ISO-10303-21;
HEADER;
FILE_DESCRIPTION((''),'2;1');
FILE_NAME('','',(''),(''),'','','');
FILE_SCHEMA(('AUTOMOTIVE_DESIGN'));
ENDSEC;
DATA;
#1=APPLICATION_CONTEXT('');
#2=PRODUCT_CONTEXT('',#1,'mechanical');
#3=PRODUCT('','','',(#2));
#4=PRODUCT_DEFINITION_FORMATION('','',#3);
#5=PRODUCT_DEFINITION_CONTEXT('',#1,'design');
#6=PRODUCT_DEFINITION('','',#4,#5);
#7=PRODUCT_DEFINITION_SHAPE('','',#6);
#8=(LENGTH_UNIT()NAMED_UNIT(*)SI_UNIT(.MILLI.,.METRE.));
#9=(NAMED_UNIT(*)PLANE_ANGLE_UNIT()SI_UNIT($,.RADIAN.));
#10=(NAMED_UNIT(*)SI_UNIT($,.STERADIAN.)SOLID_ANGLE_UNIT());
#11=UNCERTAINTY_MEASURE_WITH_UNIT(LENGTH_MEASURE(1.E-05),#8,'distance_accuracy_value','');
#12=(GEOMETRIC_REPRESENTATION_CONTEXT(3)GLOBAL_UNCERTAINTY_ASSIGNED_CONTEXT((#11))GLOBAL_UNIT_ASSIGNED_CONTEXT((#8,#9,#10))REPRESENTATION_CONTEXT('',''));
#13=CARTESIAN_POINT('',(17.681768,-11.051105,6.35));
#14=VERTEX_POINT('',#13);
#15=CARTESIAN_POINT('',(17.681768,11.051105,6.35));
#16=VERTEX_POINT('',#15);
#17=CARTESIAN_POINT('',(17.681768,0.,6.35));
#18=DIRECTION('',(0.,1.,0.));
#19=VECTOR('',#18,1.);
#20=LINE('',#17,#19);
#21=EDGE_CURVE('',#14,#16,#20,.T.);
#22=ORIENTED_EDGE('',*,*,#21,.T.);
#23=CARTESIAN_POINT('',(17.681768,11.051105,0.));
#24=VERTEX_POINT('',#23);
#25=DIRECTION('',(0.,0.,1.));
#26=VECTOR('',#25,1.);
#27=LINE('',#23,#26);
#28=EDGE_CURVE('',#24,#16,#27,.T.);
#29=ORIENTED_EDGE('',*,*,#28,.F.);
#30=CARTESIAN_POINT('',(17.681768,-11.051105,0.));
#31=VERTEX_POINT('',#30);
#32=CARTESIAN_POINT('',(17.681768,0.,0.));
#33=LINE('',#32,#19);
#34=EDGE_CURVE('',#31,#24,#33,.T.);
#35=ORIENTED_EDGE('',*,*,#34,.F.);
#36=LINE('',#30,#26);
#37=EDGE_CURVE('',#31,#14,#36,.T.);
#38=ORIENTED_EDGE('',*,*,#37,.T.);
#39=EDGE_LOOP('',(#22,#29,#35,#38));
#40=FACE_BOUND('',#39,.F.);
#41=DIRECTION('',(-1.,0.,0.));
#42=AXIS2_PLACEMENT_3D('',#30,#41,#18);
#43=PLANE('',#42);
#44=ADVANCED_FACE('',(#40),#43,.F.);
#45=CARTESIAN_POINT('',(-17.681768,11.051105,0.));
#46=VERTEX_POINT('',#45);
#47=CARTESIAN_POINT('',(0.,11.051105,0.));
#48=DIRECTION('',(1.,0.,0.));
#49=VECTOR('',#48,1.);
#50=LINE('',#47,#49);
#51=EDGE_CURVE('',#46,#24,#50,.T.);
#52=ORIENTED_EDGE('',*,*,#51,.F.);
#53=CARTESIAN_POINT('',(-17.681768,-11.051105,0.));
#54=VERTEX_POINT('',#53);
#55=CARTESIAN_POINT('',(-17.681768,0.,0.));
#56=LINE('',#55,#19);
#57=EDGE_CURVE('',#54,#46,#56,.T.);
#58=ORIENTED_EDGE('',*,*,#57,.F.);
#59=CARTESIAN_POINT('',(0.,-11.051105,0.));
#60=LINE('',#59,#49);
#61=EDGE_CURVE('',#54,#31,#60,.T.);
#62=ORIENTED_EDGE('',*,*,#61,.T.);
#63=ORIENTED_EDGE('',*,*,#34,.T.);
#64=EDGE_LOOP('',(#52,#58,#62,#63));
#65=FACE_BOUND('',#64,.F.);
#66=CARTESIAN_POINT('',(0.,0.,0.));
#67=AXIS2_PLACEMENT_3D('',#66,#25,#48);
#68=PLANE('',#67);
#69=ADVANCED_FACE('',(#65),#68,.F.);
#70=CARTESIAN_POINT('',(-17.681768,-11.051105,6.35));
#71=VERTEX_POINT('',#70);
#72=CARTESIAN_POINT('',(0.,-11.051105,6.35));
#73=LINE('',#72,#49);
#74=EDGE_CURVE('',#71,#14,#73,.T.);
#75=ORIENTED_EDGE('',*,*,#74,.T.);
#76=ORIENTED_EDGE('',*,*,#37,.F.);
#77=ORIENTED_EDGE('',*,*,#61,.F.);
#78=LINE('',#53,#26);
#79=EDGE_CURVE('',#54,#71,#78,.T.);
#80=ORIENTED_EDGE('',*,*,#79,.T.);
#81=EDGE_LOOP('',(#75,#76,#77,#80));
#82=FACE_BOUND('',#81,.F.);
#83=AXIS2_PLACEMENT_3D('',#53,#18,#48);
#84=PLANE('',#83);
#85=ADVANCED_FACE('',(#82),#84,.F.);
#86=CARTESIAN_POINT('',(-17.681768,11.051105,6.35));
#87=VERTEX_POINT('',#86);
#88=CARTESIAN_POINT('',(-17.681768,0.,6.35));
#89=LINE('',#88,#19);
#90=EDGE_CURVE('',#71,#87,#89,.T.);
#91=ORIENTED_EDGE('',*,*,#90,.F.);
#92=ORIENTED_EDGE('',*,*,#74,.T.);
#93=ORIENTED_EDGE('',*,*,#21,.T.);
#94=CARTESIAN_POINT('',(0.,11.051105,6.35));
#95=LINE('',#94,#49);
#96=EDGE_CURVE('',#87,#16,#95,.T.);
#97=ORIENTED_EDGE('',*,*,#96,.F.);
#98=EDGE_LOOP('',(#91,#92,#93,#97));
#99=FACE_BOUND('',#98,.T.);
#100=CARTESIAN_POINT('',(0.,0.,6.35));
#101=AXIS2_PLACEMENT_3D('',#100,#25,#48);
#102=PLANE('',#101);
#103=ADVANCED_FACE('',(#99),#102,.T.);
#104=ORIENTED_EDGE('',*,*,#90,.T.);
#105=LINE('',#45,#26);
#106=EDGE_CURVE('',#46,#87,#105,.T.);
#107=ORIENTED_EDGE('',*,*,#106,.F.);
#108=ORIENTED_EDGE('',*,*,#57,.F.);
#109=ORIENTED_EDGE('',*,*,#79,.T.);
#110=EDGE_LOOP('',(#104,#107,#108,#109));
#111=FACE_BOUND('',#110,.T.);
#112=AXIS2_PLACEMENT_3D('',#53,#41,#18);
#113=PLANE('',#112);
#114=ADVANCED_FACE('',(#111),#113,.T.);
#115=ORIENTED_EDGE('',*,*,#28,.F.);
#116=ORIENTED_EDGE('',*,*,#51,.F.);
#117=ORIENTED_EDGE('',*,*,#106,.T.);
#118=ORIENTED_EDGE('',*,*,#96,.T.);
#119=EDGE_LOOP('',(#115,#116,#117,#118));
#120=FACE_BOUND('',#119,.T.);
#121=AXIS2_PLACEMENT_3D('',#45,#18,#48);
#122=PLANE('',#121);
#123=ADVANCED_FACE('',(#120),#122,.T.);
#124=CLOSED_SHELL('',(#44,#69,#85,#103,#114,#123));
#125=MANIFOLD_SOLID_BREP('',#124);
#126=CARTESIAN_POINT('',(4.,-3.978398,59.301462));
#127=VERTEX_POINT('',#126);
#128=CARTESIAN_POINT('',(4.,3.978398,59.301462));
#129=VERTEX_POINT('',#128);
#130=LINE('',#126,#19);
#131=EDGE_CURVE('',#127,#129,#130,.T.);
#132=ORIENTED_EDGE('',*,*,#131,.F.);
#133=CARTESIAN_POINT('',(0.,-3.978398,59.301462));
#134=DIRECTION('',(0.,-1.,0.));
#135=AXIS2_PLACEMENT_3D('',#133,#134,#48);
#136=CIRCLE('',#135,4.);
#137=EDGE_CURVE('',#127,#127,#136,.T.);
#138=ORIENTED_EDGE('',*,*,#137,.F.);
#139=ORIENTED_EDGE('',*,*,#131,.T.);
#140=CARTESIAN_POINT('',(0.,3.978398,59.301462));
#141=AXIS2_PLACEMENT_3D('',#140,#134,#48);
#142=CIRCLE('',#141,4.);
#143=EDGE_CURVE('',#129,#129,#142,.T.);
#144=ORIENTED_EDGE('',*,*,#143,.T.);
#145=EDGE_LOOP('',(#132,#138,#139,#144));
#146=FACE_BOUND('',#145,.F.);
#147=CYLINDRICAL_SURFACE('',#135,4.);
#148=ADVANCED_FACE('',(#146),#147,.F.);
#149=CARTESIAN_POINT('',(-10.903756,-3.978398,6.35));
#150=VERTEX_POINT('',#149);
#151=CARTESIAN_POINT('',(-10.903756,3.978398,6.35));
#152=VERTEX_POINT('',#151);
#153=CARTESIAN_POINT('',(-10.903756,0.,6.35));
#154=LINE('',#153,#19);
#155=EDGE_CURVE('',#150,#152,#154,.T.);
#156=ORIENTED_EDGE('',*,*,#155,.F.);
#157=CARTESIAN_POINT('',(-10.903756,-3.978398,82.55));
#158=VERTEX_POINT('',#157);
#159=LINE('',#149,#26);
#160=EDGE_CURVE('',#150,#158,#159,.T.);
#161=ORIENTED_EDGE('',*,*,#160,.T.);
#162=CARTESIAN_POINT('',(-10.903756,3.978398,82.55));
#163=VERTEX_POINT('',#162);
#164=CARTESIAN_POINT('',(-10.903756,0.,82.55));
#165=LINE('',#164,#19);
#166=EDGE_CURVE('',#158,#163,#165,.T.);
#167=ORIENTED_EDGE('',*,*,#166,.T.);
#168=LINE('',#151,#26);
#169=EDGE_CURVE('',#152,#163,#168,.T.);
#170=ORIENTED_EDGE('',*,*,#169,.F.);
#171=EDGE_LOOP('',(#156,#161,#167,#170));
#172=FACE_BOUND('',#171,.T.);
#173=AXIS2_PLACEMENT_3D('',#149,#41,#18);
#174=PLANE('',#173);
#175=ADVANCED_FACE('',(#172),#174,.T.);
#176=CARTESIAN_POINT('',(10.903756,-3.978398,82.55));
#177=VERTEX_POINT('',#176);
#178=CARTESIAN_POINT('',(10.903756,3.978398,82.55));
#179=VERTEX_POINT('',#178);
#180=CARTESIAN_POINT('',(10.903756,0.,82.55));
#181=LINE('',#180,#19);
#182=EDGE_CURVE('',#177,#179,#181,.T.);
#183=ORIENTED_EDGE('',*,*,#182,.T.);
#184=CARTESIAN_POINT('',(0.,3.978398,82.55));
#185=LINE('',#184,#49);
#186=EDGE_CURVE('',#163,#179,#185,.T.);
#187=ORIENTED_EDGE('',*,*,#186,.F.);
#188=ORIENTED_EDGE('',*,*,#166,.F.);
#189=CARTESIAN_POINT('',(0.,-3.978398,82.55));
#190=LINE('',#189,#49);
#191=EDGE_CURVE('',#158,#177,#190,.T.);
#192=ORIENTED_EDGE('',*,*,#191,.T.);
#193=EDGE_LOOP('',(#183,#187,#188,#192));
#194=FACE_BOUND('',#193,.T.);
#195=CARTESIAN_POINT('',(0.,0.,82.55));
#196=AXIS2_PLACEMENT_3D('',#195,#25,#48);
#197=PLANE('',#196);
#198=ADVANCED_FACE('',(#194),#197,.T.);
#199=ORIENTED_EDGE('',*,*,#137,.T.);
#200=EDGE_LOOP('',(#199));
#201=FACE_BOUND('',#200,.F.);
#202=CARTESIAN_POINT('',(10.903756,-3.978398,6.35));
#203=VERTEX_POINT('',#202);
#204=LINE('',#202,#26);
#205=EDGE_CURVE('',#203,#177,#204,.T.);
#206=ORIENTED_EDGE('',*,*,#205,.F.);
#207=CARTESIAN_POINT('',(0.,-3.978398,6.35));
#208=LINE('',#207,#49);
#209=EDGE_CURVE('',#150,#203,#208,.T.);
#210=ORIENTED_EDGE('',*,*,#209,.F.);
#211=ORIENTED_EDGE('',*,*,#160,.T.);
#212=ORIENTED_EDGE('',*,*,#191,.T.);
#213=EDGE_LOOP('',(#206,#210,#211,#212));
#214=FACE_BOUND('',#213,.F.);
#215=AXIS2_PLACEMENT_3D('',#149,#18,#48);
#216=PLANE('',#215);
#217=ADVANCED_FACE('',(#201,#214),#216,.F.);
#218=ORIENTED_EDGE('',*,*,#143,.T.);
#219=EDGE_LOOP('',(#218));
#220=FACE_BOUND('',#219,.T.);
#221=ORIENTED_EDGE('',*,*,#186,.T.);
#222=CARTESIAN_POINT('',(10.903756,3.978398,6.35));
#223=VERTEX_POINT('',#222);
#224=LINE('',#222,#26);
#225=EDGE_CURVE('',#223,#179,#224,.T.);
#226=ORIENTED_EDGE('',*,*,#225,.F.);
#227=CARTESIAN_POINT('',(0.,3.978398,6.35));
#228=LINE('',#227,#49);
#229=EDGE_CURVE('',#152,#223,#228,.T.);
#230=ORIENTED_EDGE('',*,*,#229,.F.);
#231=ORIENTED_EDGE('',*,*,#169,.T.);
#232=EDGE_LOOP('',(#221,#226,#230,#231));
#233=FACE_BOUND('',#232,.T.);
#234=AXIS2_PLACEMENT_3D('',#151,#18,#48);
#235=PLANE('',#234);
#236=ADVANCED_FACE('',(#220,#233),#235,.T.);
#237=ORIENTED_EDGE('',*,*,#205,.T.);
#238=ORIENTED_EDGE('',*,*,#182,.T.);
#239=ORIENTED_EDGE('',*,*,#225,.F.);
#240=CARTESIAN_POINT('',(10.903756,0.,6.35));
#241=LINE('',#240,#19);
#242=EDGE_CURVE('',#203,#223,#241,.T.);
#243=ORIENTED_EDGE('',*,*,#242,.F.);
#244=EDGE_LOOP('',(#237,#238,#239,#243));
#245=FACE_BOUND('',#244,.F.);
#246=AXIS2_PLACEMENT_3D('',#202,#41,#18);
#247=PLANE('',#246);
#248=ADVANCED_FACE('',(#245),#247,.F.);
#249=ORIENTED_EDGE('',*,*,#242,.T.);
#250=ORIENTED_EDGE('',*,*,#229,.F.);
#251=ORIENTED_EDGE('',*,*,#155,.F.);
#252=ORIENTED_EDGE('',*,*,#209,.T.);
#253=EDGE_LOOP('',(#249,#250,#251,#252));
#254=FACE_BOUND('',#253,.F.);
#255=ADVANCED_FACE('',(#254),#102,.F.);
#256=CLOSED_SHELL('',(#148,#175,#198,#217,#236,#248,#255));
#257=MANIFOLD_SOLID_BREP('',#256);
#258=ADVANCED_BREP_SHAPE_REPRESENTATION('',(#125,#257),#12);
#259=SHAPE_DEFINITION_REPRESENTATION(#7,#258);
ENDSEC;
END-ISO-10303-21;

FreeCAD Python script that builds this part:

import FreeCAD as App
import Part
import Sketcher
from FreeCAD import Vector
Q = App.Units.Quantity


def add_polygon(sketch, points):
    """Adds a closed chain of lines whose ends are joined by coincident constraints."""
    first, n = sketch.GeometryCount, len(points)
    for a, b in zip(points, points[1:] + points[:1]):
        sketch.addGeometry(Part.LineSegment(App.Vector(*a, 0), App.Vector(*b, 0)), False)
    for i in range(n):
        sketch.addConstraint(Sketcher.Constraint("Coincident", first + i, 2, first + (i + 1) % n, 1))

doc = App.newDocument("Part")
body = doc.addObject("PartDesign::Body", "Body")

sketch1 = body.newObject("Sketcher::SketchObject", "Sketch")
sketch1.AttachmentSupport = (doc.getObject("XY_Plane"), [""])
sketch1.MapMode = "FlatFace"
add_polygon(sketch1, [(-18, 11), (-18, -11), (18, -11), (18, 11)])
sketch1.addConstraint([
    Sketcher.Constraint("Vertical", 0),
    Sketcher.Constraint("Horizontal", 1),
    Sketcher.Constraint("Vertical", 2),
    Sketcher.Constraint("Horizontal", 3),
    Sketcher.Constraint("Symmetric", 0, 2, 2, 2, -1, 1),
    Sketcher.Constraint("DistanceY", 0, 2, 0, 1, Q("22.10221 mm")),
    Sketcher.Constraint("DistanceX", 1, 1, 1, 2, Q("35.363536 mm")),
])
pad1 = body.newObject("PartDesign::Pad", "Pad")
pad1.Profile = sketch1
pad1.Length = Q("0.25 in")
body2 = doc.addObject("PartDesign::Body", "Body001")

sketch2 = body2.newObject("Sketcher::SketchObject", "Sketch001")
sketch2.AttachmentSupport = (doc.getObject("XY_Plane001"), [""])
sketch2.MapMode = "FlatFace"
sketch2.AttachmentOffset = App.Placement(Vector(0, 0, 0.25 * 25.4), App.Rotation())
add_polygon(sketch2, [(-11, 4), (-11, -4), (11, -4), (11, 4)])
sketch2.addConstraint([
    Sketcher.Constraint("Vertical", 0),
    Sketcher.Constraint("Horizontal", 1),
    Sketcher.Constraint("Vertical", 2),
    Sketcher.Constraint("Horizontal", 3),
    Sketcher.Constraint("Symmetric", 0, 2, 2, 2, -1, 1),
    Sketcher.Constraint("DistanceX", 1, 1, 1, 2, Q("21.807512 mm")),
    Sketcher.Constraint("DistanceY", 0, 2, 0, 1, Q("7.956796 mm")),
])
pad2 = body2.newObject("PartDesign::Pad", "Pad001")
pad2.Profile = sketch2
pad2.Length = Q("3 in")

sketch3 = body2.newObject("Sketcher::SketchObject", "Sketch002")
sketch3.AttachmentSupport = (doc.getObject("XZ_Plane001"), [""])
sketch3.MapMode = "FlatFace"
sketch3.AttachmentOffset = App.Placement(Vector(0, 0, 3.978398), App.Rotation())
sketch3.addGeometry(Part.Circle(Vector(0, 59.3, 0), Vector(0, 0, 1), 4), False)
sketch3.addConstraint([
    Sketcher.Constraint("PointOnObject", 0, 3, -2),
    Sketcher.Constraint("Diameter", 0, Q("8 mm")),
    Sketcher.Constraint("DistanceY", -1, 1, 0, 3, Q("59.301462 mm")),
])
pocket1 = body2.newObject("PartDesign::Pocket", "Pocket")
pocket1.Profile = sketch3
pocket1.Type = "ThroughAll"

doc.recompute()
